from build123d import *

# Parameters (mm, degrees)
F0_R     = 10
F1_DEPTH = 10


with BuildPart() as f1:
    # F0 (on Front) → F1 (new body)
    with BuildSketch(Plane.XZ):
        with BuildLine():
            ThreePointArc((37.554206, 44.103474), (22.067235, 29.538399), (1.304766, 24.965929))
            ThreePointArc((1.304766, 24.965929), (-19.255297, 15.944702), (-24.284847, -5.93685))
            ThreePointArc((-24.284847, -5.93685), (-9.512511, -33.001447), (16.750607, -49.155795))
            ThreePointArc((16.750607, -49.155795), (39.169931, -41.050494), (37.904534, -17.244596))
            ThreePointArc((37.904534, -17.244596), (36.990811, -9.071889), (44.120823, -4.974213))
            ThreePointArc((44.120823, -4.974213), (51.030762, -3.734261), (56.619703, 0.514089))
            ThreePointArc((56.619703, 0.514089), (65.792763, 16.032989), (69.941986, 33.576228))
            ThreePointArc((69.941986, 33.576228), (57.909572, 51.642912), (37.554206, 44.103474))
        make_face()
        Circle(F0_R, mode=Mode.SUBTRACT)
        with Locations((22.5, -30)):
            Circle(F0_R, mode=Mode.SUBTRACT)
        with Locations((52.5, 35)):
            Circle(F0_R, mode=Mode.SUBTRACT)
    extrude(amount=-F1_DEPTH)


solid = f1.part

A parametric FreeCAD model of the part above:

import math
import FreeCAD as App
import Part
import Sketcher

V = App.Vector
Q = App.Units.Quantity

doc = App.newDocument("Part")
params = doc.addObject("Spreadsheet::Sheet", "Params")
for row, (alias, value) in enumerate([
    ("sketch1_diameter", "20 mm"),
    ("sketch1_radius", "25.000001 mm"),
    ("sketch1_radius2", "59.999998 mm"),
    ("sketch1_radius3", "20 mm"),
    ("sketch1_radius4", "7.5 mm"),
    ("pad1_length", "10 mm"),
], start=1):
    params.set(f"A{row}", alias)
    params.set(f"B{row}", "=" + value)
    params.setAlias(f"B{row}", alias)

body = doc.addObject("PartDesign::Body", "Body")

sketch1 = doc.addObject("Sketcher::SketchObject", "Sketch")
body.addObject(sketch1)
sketch1.AttachmentSupport = (doc.XZ_Plane, [""])
sketch1.MapMode = "FlatFace"
sketch1.addGeometry(Part.ArcOfCircle(Part.Circle(V(3, 65, 0), V(0, 0, 1), 40), math.radians(-93), math.radians(-31)), False)
sketch1.addGeometry(Part.ArcOfCircle(Part.Circle(V(0, 0, 0), V(0, 0, 1), 25), math.radians(87), math.radians(194)), False)
sketch1.addGeometry(Part.ArcOfCircle(Part.Circle(V(34, 8, 0), V(0, 0, 1), 60), math.radians(-166), math.radians(-107)), False)
sketch1.addGeometry(Part.ArcOfCircle(Part.Circle(V(23, -30, 0), V(0, 0, 1), 20), math.radians(-107), math.radians(40)), False)
sketch1.addGeometry(Part.ArcOfCircle(Part.Circle(V(44, -12, 0), V(0, 0, 1), 7), math.radians(87), math.radians(220)), False)
sketch1.addGeometry(Part.ArcOfCircle(Part.Circle(V(45, 10, 0), V(0, 0, 1), 15), math.radians(-93), math.radians(-39)), False)
sketch1.addGeometry(Part.ArcOfCircle(Part.Circle(V(10, 38, 0), V(0, 0, 1), 60), math.radians(-39), math.radians(-5)), False)
sketch1.addGeometry(Part.ArcOfCircle(Part.Circle(V(52, 35, 0), V(0, 0, 1), 18), math.radians(-5), math.radians(149)), False)
sketch1.addGeometry(Part.Circle(V(22, -30, 0), V(0, 0, 1), 10), False)
sketch1.addGeometry(Part.Circle(V(0, 0, 0), V(0, 0, 1), 10), False)
sketch1.addGeometry(Part.Circle(V(52, 35, 0), V(0, 0, 1), 10), False)
sketch1.addConstraint(Sketcher.Constraint("Tangent", 0, 1, 1, 1))
sketch1.addConstraint(Sketcher.Constraint("Tangent", 1, 2, 2, 1))
sketch1.addConstraint(Sketcher.Constraint("Tangent", 2, 2, 3, 1))
sketch1.addConstraint(Sketcher.Constraint("Tangent", 3, 2, 4, 2))
sketch1.addConstraint(Sketcher.Constraint("Tangent", 4, 1, 5, 1))
sketch1.addConstraint(Sketcher.Constraint("Tangent", 5, 2, 6, 1))
sketch1.addConstraint(Sketcher.Constraint("Tangent", 6, 2, 7, 1))
sketch1.addConstraint(Sketcher.Constraint("Tangent", 7, 2, 0, 2))
sketch1.addConstraint(Sketcher.Constraint("Coincident", 1, 3, -1, 1))
sketch1.addConstraint(Sketcher.Constraint("Coincident", 9, 3, -1, 1))
sketch1.addConstraint(Sketcher.Constraint("Coincident", 8, 3, 3, 3))
sketch1.addConstraint(Sketcher.Constraint("Coincident", 10, 3, 7, 3))
sketch1.addConstraint(Sketcher.Constraint("Equal", 8, 9))
sketch1.addConstraint(Sketcher.Constraint("Equal", 9, 10))
sketch1.addConstraint(Sketcher.Constraint("Diameter", 8, Q("20 mm")))
sketch1.addConstraint(Sketcher.Constraint("Radius", 1, Q("25.000001 mm")))
sketch1.addConstraint(Sketcher.Constraint("Radius", 2, Q("59.999998 mm")))
sketch1.addConstraint(Sketcher.Constraint("Radius", 3, Q("20 mm")))
sketch1.addConstraint(Sketcher.Constraint("Radius", 4, Q("7.5 mm")))
sketch1.addConstraint(Sketcher.Constraint("Radius", 7, Q("17.5 mm")))
sketch1.addConstraint(Sketcher.Constraint("DistanceY", 3, 3, -1, 1, Q("30 mm")))
sketch1.addConstraint(Sketcher.Constraint("DistanceX", -1, 1, 5, 3, Q("45.000001 mm")))
sketch1.addConstraint(Sketcher.Constraint("DistanceY", -1, 1, 7, 3, Q("35 mm")))
sketch1.addConstraint(Sketcher.Constraint("DistanceX", -1, 1, 3, 3, Q("22.5 mm")))
sketch1.addConstraint(Sketcher.Constraint("DistanceX", -1, 1, 7, 3, Q("52.5 mm")))
sketch1.addConstraint(Sketcher.Constraint("Radius", 0, Q("39.999997 mm")))
sketch1.addConstraint(Sketcher.Constraint("Radius", 5, Q("14.999998 mm")))
sketch1.addConstraint(Sketcher.Constraint("Radius", 6, Q("60.000013 mm")))
sketch1.addConstraint(Sketcher.Constraint("DistanceX", 3, 2, 4, 3, Q("5.7767 mm")))
sketch1.setExpression("Constraints[14]", "Params.sketch1_diameter")
sketch1.setExpression("Constraints[15]", "Params.sketch1_radius")
sketch1.setExpression("Constraints[16]", "Params.sketch1_radius2")
sketch1.setExpression("Constraints[17]", "Params.sketch1_radius3")
sketch1.setExpression("Constraints[18]", "Params.sketch1_radius4")
pad1 = doc.addObject("PartDesign::Pad", "Pad")
body.addObject(pad1)
pad1.Profile = sketch1
pad1.setExpression("Length", "Params.pad1_length")
pad1.Reversed = True

doc.recompute()
